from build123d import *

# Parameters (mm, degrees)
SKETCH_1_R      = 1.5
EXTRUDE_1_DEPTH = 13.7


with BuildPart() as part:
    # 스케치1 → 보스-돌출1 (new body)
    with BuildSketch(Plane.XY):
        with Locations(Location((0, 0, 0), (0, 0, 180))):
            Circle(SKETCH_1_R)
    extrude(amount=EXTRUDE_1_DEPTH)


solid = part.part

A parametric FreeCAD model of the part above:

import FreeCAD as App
import Part
import Sketcher
Q = App.Units.Quantity

doc = App.newDocument("Part")
body = doc.addObject("PartDesign::Body", "Body")

sketch1 = body.newObject("Sketcher::SketchObject", "Sketch")
sketch1.AttachmentSupport = (doc.getObject("XY_Plane"), [""])
sketch1.MapMode = "FlatFace"
sketch1.addGeometry(Part.Circle(App.Vector(0, 0, 0), App.Vector(0, 0, 1), 1.5), False)
sketch1.addConstraint([
    Sketcher.Constraint("Coincident", 0, 3, -1, 1),
    Sketcher.Constraint("Diameter", 0, Q("3 mm")),
])
pad1 = body.newObject("PartDesign::Pad", "Pad")
pad1.Profile = sketch1
pad1.Length = 13.7

doc.recompute()
